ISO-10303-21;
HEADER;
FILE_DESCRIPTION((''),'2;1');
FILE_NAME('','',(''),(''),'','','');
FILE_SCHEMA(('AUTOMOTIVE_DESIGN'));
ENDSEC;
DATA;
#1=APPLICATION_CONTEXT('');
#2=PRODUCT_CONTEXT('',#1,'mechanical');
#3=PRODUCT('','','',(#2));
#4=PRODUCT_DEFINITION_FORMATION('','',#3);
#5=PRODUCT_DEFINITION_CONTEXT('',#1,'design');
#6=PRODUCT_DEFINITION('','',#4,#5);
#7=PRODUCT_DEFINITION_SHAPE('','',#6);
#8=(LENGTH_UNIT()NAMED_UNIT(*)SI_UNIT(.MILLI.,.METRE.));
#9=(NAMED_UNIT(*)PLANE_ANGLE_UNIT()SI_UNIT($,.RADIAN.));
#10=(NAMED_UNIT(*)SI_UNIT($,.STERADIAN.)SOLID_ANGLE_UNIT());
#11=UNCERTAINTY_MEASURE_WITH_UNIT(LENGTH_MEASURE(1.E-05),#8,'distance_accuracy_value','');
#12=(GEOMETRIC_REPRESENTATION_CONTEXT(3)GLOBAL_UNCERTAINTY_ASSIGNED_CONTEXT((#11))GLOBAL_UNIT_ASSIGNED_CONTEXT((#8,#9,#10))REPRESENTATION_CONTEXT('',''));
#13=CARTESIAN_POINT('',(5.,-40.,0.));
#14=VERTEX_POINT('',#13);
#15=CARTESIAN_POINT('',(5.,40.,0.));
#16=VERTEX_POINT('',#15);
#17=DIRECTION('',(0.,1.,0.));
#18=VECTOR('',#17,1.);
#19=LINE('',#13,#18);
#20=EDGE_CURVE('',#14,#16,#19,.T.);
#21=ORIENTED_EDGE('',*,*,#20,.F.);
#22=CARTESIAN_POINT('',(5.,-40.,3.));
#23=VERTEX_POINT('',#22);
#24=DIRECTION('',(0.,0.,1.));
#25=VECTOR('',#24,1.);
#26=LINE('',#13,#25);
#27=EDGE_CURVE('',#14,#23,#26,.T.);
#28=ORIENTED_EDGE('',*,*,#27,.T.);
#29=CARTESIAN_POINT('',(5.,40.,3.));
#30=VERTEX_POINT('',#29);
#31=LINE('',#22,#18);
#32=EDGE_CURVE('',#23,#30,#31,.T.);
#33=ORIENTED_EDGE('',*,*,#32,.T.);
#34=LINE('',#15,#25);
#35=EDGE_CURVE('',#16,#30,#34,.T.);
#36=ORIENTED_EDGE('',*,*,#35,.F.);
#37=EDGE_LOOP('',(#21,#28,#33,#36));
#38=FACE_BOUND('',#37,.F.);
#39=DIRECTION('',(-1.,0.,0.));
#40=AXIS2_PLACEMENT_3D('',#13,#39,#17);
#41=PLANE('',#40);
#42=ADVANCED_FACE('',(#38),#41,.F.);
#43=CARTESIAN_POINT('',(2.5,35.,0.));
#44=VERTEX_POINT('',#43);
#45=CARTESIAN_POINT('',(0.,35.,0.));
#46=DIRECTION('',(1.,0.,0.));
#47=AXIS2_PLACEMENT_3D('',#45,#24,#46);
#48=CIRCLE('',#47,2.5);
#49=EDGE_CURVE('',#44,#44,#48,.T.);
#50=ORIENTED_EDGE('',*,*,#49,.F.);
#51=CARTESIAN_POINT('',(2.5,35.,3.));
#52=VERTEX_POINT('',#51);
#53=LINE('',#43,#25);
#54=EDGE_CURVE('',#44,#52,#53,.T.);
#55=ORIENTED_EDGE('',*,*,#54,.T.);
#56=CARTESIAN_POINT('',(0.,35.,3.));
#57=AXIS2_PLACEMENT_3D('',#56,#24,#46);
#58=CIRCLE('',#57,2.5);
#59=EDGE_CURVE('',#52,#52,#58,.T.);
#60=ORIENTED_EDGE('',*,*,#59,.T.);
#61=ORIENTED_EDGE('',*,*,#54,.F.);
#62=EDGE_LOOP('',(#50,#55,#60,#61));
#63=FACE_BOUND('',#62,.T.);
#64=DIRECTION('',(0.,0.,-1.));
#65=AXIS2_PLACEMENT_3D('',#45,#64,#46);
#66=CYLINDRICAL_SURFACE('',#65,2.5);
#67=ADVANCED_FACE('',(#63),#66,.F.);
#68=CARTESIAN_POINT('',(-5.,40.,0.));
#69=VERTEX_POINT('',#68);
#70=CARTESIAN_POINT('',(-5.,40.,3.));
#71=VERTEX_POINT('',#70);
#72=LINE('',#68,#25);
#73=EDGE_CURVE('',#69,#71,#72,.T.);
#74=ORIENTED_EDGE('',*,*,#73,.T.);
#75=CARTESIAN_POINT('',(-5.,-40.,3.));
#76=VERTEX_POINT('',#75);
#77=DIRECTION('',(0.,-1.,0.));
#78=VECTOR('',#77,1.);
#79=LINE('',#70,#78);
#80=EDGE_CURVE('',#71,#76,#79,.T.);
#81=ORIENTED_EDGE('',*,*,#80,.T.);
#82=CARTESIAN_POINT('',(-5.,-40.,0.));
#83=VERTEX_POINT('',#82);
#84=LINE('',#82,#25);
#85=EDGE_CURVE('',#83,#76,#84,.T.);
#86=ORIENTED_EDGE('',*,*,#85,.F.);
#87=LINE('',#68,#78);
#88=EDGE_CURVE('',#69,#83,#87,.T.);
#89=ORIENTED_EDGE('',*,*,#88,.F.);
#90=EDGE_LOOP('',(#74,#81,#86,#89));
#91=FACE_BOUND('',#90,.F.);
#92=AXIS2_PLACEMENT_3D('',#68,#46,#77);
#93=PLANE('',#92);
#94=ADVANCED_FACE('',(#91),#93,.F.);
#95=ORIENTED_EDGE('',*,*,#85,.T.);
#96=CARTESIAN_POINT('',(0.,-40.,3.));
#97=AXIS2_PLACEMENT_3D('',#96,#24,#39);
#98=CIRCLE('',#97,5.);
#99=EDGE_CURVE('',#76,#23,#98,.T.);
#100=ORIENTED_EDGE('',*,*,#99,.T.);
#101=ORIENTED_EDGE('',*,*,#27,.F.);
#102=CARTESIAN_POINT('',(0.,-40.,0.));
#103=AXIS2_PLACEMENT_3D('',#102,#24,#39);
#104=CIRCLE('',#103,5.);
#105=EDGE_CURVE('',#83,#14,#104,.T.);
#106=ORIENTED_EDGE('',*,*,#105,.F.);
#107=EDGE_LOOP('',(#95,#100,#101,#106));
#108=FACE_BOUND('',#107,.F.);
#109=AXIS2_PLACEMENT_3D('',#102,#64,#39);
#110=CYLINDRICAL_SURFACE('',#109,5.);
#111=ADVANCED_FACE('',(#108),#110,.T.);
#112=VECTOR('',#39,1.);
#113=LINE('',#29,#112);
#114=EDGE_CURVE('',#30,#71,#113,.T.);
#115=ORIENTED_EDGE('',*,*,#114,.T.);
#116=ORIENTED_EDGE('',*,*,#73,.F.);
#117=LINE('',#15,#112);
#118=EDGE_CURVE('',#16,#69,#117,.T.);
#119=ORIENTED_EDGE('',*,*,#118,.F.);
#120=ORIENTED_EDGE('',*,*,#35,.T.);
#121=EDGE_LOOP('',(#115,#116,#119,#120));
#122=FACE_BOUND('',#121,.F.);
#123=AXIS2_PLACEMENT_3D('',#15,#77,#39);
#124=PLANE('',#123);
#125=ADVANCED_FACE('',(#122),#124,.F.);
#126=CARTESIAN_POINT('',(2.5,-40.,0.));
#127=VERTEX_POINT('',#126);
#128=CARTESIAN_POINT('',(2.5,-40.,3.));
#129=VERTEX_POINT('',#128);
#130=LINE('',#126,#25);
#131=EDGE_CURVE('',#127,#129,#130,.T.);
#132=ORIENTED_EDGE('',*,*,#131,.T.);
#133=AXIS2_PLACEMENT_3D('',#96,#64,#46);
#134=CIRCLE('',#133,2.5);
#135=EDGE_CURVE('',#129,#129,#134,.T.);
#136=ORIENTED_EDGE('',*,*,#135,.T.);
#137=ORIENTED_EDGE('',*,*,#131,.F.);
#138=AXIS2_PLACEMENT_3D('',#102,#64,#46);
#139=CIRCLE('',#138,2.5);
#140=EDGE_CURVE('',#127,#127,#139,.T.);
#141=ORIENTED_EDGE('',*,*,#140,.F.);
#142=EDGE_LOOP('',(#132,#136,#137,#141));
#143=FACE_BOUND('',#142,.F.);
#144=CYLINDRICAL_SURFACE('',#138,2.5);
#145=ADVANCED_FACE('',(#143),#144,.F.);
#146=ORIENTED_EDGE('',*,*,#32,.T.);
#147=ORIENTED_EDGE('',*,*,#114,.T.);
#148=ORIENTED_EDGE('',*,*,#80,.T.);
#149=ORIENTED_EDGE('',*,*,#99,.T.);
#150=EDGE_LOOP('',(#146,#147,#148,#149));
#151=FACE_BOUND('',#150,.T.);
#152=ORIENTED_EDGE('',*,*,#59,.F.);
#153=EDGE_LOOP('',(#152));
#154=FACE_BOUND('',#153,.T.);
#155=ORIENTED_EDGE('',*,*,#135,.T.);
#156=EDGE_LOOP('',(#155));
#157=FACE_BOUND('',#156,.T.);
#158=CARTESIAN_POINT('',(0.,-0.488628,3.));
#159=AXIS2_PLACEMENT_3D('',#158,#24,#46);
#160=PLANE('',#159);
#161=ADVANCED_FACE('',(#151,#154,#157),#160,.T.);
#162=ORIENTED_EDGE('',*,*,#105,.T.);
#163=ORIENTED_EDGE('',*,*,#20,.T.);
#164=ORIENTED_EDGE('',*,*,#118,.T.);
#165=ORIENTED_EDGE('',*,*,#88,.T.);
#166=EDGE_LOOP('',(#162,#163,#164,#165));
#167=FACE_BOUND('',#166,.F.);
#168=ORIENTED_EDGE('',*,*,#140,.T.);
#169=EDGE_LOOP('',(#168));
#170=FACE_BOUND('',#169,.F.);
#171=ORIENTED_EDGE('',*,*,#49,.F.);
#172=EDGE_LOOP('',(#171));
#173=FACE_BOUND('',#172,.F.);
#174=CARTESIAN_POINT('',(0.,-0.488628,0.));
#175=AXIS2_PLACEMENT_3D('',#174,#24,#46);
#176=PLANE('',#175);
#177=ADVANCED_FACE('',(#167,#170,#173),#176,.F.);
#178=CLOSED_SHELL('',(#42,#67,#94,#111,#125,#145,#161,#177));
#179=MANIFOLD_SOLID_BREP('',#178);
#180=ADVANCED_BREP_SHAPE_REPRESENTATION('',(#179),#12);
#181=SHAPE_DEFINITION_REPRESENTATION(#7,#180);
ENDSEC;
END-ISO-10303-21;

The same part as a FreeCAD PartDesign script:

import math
import FreeCAD as App
import Part
import Sketcher

V = App.Vector
Q = App.Units.Quantity

doc = App.newDocument("Part")
body = doc.addObject("PartDesign::Body", "Body")

# Sketch on XY plane
sketch1 = doc.addObject("Sketcher::SketchObject", "Sketch")
body.addObject(sketch1)
sketch1.AttachmentSupport = (doc.XY_Plane, [""])
sketch1.MapMode = "FlatFace"
sketch1.addGeometry([
    Part.LineSegment(V(-5, 40, 0), V(-5, -40, 0)),  # 0
    Part.ArcOfCircle(Part.Circle(V(0, -40, 0), V(0, 0, 1), 5), math.radians(180), math.radians(360)),  # 1
    Part.LineSegment(V(5, -40, 0), V(5, 40, 0)),  # 2
    Part.LineSegment(V(5, 40, 0), V(-5, 40, 0)),  # 3
    Part.Circle(V(0, -40, 0), V(0, 0, 1), 2.5),  # 4
    Part.Circle(V(0, 35, 0), V(0, 0, 1), 2.5),  # 5
], False)
sketch1.addConstraint([
    Sketcher.Constraint("Tangent", 0, 2, 1, 1),
    Sketcher.Constraint("Tangent", 1, 2, 2, 1),
    Sketcher.Constraint("Coincident", 2, 2, 3, 1),
    Sketcher.Constraint("Coincident", 3, 2, 0, 1),
    Sketcher.Constraint("Vertical", 0),
    Sketcher.Constraint("Vertical", 2),
    Sketcher.Constraint("Horizontal", 3),
    Sketcher.Constraint("Coincident", 4, 3, 1, 3),
    Sketcher.Constraint("Equal", 4, 5),
    Sketcher.Constraint("Symmetric", 0, 2, 2, 2, -1, 1),
    Sketcher.Constraint("PointOnObject", 5, 3, -2),
    Sketcher.Constraint("Diameter", 4, Q("5 mm")),
    Sketcher.Constraint("Radius", 1, Q("5 mm")),
    Sketcher.Constraint("DistanceY", 0, 2, 0, 1, Q("80 mm")),
    Sketcher.Constraint("DistanceY", -1, 1, 5, 3, Q("35 mm")),
])
pad1 = doc.addObject("PartDesign::Pad", "Pad")
body.addObject(pad1)
pad1.Profile = sketch1
pad1.Length = 3

doc.recompute()
